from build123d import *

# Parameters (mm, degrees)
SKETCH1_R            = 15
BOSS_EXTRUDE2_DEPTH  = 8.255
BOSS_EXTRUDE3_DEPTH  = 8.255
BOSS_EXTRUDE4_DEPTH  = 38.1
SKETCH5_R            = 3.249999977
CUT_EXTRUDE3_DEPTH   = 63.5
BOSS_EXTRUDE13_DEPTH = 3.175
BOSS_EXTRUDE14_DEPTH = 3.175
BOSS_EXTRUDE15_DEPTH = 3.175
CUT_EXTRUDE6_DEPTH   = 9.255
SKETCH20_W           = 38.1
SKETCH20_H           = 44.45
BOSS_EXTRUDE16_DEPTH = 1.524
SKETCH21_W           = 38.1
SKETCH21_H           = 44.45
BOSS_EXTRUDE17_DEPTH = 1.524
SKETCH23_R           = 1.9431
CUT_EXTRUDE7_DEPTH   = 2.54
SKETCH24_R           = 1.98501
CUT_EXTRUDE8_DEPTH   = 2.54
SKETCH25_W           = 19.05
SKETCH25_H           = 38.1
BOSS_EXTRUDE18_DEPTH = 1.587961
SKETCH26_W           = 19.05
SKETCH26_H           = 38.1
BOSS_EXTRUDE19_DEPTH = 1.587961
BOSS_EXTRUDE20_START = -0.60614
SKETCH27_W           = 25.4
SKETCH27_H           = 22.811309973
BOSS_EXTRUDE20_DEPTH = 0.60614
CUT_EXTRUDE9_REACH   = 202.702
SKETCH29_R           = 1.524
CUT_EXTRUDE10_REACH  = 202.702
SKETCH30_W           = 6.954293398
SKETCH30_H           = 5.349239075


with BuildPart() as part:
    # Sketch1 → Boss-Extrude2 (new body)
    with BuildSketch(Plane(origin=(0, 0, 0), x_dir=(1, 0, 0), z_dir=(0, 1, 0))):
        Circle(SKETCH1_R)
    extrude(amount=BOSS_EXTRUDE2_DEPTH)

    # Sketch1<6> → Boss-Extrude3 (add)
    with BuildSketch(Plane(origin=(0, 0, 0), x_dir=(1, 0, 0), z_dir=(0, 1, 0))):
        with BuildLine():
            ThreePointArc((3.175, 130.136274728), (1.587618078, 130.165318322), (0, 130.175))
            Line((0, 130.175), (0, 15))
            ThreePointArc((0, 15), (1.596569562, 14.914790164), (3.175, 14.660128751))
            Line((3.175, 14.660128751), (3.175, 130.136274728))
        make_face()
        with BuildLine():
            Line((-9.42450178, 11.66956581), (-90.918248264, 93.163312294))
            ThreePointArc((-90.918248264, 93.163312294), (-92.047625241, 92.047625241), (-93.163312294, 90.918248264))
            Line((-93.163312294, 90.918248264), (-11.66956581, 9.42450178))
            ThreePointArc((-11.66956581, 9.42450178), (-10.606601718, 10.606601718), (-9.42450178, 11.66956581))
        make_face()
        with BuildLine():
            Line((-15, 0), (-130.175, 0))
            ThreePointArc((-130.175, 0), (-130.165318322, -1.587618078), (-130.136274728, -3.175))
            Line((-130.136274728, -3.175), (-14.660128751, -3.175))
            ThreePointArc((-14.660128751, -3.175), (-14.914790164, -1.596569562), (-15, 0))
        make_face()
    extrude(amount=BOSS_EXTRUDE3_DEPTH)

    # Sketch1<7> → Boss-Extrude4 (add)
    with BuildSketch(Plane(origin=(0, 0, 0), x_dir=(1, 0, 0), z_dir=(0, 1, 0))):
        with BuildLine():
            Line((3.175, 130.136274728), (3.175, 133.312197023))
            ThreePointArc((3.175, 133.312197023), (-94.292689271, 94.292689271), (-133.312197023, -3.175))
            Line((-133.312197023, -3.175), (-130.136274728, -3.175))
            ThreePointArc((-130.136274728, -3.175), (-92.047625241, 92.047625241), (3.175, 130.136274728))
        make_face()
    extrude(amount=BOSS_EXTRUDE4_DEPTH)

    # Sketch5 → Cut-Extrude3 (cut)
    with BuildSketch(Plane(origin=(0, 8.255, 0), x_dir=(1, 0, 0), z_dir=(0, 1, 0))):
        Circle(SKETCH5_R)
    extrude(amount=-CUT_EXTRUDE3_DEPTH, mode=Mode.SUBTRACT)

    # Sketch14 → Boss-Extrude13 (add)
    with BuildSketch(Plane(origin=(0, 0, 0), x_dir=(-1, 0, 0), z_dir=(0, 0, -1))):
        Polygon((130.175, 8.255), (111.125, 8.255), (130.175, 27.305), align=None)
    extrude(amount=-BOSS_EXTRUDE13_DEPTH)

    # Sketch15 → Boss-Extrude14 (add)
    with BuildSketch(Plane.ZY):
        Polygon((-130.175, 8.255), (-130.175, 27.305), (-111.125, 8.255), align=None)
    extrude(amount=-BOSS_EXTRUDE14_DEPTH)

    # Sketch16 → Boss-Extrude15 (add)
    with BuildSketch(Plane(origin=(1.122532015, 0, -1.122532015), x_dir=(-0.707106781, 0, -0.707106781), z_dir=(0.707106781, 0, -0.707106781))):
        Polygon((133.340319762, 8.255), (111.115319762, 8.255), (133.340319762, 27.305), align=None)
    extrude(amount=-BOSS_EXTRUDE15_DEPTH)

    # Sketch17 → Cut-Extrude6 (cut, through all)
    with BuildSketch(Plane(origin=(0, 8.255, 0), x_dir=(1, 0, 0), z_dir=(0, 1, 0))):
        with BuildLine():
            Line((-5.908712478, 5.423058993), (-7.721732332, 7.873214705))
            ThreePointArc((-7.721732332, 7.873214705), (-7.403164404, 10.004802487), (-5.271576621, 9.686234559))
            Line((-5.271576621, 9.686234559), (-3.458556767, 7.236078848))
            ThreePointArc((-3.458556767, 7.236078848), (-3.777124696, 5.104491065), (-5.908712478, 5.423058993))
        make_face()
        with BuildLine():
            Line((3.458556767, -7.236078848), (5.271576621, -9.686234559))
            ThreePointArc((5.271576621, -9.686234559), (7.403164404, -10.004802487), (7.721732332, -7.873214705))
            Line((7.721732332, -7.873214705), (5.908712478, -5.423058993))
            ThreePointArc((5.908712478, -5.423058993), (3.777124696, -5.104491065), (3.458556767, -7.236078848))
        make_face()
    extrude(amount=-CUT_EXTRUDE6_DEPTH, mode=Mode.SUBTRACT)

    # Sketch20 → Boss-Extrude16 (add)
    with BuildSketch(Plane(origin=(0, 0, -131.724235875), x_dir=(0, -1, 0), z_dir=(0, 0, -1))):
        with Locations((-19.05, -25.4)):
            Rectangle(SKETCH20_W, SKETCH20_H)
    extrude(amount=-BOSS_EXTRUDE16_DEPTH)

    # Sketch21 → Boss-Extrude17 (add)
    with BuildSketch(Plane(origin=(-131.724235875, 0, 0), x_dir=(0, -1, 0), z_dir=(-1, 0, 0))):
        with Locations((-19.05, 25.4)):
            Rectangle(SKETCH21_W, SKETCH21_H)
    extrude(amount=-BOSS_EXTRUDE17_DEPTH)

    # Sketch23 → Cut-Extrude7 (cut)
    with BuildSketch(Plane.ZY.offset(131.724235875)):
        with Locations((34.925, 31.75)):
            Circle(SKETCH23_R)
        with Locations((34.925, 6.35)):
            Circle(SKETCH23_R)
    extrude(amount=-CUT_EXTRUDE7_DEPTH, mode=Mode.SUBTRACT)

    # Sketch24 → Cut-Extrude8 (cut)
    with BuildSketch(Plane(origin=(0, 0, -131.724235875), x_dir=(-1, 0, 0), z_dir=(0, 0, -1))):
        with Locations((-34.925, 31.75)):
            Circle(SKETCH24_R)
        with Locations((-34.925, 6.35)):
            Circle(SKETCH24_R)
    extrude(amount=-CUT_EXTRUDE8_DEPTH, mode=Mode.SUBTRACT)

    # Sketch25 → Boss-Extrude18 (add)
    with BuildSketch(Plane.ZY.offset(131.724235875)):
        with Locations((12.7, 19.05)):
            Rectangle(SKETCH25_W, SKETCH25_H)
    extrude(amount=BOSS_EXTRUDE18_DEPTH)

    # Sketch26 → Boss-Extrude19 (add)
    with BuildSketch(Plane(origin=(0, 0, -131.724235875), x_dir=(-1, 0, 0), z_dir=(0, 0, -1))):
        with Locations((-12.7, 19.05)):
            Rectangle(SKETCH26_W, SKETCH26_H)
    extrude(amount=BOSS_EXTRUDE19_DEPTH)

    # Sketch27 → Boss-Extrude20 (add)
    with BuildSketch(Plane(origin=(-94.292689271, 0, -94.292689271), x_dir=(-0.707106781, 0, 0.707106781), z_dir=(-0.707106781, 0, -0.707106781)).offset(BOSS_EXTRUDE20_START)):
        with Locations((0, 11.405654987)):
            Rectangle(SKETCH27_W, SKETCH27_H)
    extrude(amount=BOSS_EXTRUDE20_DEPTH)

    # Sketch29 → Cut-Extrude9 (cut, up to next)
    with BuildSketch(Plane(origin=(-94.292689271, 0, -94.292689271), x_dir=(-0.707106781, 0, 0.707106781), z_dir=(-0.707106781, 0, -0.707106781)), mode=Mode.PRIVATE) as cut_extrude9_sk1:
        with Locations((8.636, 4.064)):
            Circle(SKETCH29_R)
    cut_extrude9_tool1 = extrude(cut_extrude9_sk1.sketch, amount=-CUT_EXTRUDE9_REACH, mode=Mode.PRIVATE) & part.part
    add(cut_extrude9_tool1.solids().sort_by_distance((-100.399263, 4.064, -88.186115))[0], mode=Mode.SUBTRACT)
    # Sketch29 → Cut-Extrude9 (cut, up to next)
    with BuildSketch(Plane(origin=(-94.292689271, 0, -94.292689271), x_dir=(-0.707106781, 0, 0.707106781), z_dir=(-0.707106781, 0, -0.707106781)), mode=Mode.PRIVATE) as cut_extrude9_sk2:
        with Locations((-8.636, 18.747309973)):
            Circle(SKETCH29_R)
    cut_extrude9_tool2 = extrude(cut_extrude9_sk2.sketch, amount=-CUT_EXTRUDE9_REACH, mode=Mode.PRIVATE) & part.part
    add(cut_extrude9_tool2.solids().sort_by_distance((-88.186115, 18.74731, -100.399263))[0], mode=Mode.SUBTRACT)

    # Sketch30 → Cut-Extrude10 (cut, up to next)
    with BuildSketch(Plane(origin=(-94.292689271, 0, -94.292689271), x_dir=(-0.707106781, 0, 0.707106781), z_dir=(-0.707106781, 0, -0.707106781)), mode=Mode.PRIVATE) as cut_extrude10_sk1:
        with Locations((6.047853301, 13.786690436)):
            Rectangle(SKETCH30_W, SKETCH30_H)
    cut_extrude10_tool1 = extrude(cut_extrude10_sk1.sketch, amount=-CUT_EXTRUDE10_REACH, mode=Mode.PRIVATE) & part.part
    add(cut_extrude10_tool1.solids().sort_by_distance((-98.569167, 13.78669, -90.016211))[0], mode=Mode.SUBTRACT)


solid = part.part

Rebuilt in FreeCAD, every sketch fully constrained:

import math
import FreeCAD as App
import Part
import Sketcher
Q = App.Units.Quantity

doc = App.newDocument("Part")
params = doc.addObject("Spreadsheet::Sheet", "Params")
for row, (alias, value) in enumerate([
    ("pad1_length", "0.325 in"),
    ("sketch2_radius", "5.125 in"),
    ("sketch2_radius2", "5.1249999 in"),
    ("pad2_length", "0.325 in"),
    ("sketch3_radius", "5.25 in"),
    ("sketch3_radius2", "5.125 in"),
    ("pad3_length", "1.5 in"),
    ("pocket1_length", "2.5 in"),
    ("sketch5_width", "0.75 in"),
    ("pad4_length", "0.125 in"),
    ("sketch6_width", "0.75 in"),
    ("pad5_length", "0.125 in"),
    ("sketch7_height", "0.75 in"),
    ("sketch7_width", "0.875 in"),
    ("pad6_length", "0.125 in"),
    ("sketch8_radius", "0.06 in"),
    ("sketch8_length", "0.12 in"),
    ("sketch9_height", "1.5 in"),
    ("sketch9_width", "1.75 in"),
    ("pad7_length", "0.06 in"),
    ("sketch10_width", "1.5 in"),
    ("sketch10_height", "1.75 in"),
    ("pad8_length", "0.06 in"),
    ("sketch11_diameter", "0.153 in"),
    ("pocket3_length", "0.1 in"),
    ("pocket4_length", "0.1 in"),
    ("sketch13_width", "1.5 in"),
    ("sketch13_height", "0.75 in"),
    ("pad9_length", "1.587961 mm"),
    ("sketch14_height", "1.5 in"),
    ("sketch14_width", "0.75 in"),
    ("pad10_length", "1.587961 mm"),
    ("sketch15_width", "1 in"),
    ("pad11_length", "0.60614 mm"),
    ("sketch16_diameter", "0.12 in"),
    ("sketch17_diameter", "0.12 in"),
], start=1):
    params.set(f"A{row}", alias)
    params.set(f"B{row}", "=" + value)
    params.setAlias(f"B{row}", alias)

body = doc.addObject("PartDesign::Body", "Body")

# Sketch on XZ plane
sketch1 = body.newObject("Sketcher::SketchObject", "Sketch")
sketch1.AttachmentSupport = (doc.getObject("XZ_Plane"), [""])
sketch1.MapMode = "FlatFace"
sketch1.addGeometry(Part.Circle(App.Vector(0, 0, 0), App.Vector(0, 0, 1), 15), False)
sketch1.addConstraint(Sketcher.Constraint("Coincident", 0, 3, -1, 1))
sketch1.addConstraint(Sketcher.Constraint("Diameter", 0, 30.0))
pad1 = body.newObject("PartDesign::Pad", "Pad")
pad1.Profile = sketch1
pad1.setExpression("Length", "Params.pad1_length")
pad1.Reversed = True

# Sketch on XZ plane
sketch2 = body.newObject("Sketcher::SketchObject", "Sketch001")
sketch2.AttachmentSupport = (doc.getObject("XZ_Plane"), [""])
sketch2.MapMode = "FlatFace"
sketch2.addGeometry(Part.ArcOfCircle(Part.Circle(App.Vector(0, 0.000001, 0), App.Vector(0, 0, 1), 130.175001), math.radians(-90), math.radians(-88.602403)), False)
sketch2.addGeometry(Part.LineSegment(App.Vector(0, -130.175, 0), App.Vector(0, -15, 0)), False)
sketch2.addGeometry(Part.ArcOfCircle(Part.Circle(App.Vector(0, 0, 0), App.Vector(0, 0, 1), 15), math.radians(-90), math.radians(-77.779959)), False)
sketch2.addGeometry(Part.LineSegment(App.Vector(3.175, -14.660129, 0), App.Vector(3.175, -130.136275, 0)), False)
sketch2.addGeometry(Part.LineSegment(App.Vector(-9.424502, -11.669566, 0), App.Vector(-90.918248, -93.163312, 0)), False)
sketch2.addGeometry(Part.ArcOfCircle(Part.Circle(App.Vector(-0.000001, -0.000001, 0), App.Vector(0, 0, 1), 130.174998), math.radians(-135.698746), math.radians(-134.301254)), False)
sketch2.addGeometry(Part.LineSegment(App.Vector(-93.163312, -90.918248, 0), App.Vector(-11.669566, -9.424502, 0)), False)
sketch2.addGeometry(Part.ArcOfCircle(Part.Circle(App.Vector(0, 0, 0), App.Vector(0, 0, 1), 15), math.radians(-141.075181), math.radians(-128.924819)), False)
sketch2.addGeometry(Part.LineSegment(App.Vector(-15, 0, 0), App.Vector(-130.175, 0, 0)), False)
sketch2.addGeometry(Part.ArcOfCircle(Part.Circle(App.Vector(0.000001, 0, 0), App.Vector(0, 0, 1), 130.175001), math.radians(178.602403), math.radians(180)), False)
sketch2.addGeometry(Part.LineSegment(App.Vector(-130.136275, 3.175, 0), App.Vector(-14.660129, 3.175, 0)), False)
sketch2.addGeometry(Part.ArcOfCircle(Part.Circle(App.Vector(0, 0, 0), App.Vector(0, 0, 1), 15), math.radians(167.779959), math.radians(180)), False)
sketch2.addConstraint(Sketcher.Constraint("Coincident", 0, 1, 1, 1))
sketch2.addConstraint(Sketcher.Constraint("Coincident", 1, 2, 2, 1))
sketch2.addConstraint(Sketcher.Constraint("Coincident", 2, 2, 3, 1))
sketch2.addConstraint(Sketcher.Constraint("Coincident", 3, 2, 0, 2))
sketch2.addConstraint(Sketcher.Constraint("Coincident", 4, 2, 5, 2))
sketch2.addConstraint(Sketcher.Constraint("Coincident", 5, 1, 6, 1))
sketch2.addConstraint(Sketcher.Constraint("Coincident", 6, 2, 7, 1))
sketch2.addConstraint(Sketcher.Constraint("Coincident", 7, 2, 4, 1))
sketch2.addConstraint(Sketcher.Constraint("Coincident", 8, 2, 9, 2))
sketch2.addConstraint(Sketcher.Constraint("Coincident", 9, 1, 10, 1))
sketch2.addConstraint(Sketcher.Constraint("Coincident", 10, 2, 11, 1))
sketch2.addConstraint(Sketcher.Constraint("Coincident", 11, 2, 8, 1))
sketch2.addConstraint(Sketcher.Constraint("Vertical", 1))
sketch2.addConstraint(Sketcher.Constraint("Vertical", 3))
sketch2.addConstraint(Sketcher.Constraint("Horizontal", 8))
sketch2.addConstraint(Sketcher.Constraint("Horizontal", 10))
sketch2.addConstraint(Sketcher.Constraint("Coincident", 0, 3, -1, 1))
sketch2.addConstraint(Sketcher.Constraint("Coincident", 2, 3, -1, 1))
sketch2.addConstraint(Sketcher.Constraint("Coincident", 5, 3, -1, 1))
sketch2.addConstraint(Sketcher.Constraint("Coincident", 7, 3, -1, 1))
sketch2.addConstraint(Sketcher.Constraint("Coincident", 9, 3, -1, 1))
sketch2.addConstraint(Sketcher.Constraint("Coincident", 11, 3, -1, 1))
sketch2.addConstraint(Sketcher.Constraint("Equal", 2, 7))
sketch2.addConstraint(Sketcher.Constraint("Equal", 0, 9))
sketch2.addConstraint(Sketcher.Constraint("Equal", 7, 11))
sketch2.addConstraint(Sketcher.Constraint("PointOnObject", 0, 1, -2))
sketch2.addConstraint(Sketcher.Constraint("PointOnObject", 8, 2, -1))
sketch2.addConstraint(Sketcher.Constraint("Parallel", 4, 6))
sketch2.addConstraint(Sketcher.Constraint("Equal", 10, 3))
sketch2.addConstraint(Sketcher.Constraint("Equal", 4, 6))
sketch2.addConstraint(Sketcher.Constraint("Angle", 4, Q("-135 deg")))
sketch2.addConstraint(Sketcher.Constraint("Radius", 0, Q("5.125 in")))
sketch2.addConstraint(Sketcher.Constraint("Radius", 5, Q("5.1249999 in")))
sketch2.addConstraint(Sketcher.Constraint("Radius", 2, 15.0))
sketch2.addConstraint(Sketcher.Constraint("DistanceX", -1, 1, 2, 2, Q("0.125 in")))
sketch2.addConstraint(Sketcher.Constraint("DistanceY", 6, 2, -1, 1, 9.424502))
sketch2.setExpression("Constraints[31]", "Params.sketch2_radius")
sketch2.setExpression("Constraints[32]", "Params.sketch2_radius2")
pad2 = body.newObject("PartDesign::Pad", "Pad001")
pad2.Profile = sketch2
pad2.setExpression("Length", "Params.pad2_length")
pad2.Reversed = True

# Sketch on XZ plane
sketch3 = body.newObject("Sketcher::SketchObject", "Sketch002")
sketch3.AttachmentSupport = (doc.getObject("XZ_Plane"), [""])
sketch3.MapMode = "FlatFace"
sketch3.addGeometry(Part.LineSegment(App.Vector(3.175, -130.136275, 0), App.Vector(3.175, -133.312197, 0)), False)
sketch3.addGeometry(Part.ArcOfCircle(Part.Circle(App.Vector(0, 0, 0), App.Vector(0, 0, 1), 133.35), math.radians(178.635686), math.radians(271.364314)), False)
sketch3.addGeometry(Part.LineSegment(App.Vector(-133.312197, 3.175, 0), App.Vector(-130.136275, 3.175, 0)), False)
sketch3.addGeometry(Part.ArcOfCircle(Part.Circle(App.Vector(0, 0, 0), App.Vector(0, 0, 1), 130.175), math.radians(178.602403), math.radians(271.397597)), False)
sketch3.addConstraint(Sketcher.Constraint("Coincident", 0, 2, 1, 2))
sketch3.addConstraint(Sketcher.Constraint("Coincident", 1, 1, 2, 1))
sketch3.addConstraint(Sketcher.Constraint("Coincident", 2, 2, 3, 1))
sketch3.addConstraint(Sketcher.Constraint("Coincident", 3, 2, 0, 1))
sketch3.addConstraint(Sketcher.Constraint("Vertical", 0))
sketch3.addConstraint(Sketcher.Constraint("Horizontal", 2))
sketch3.addConstraint(Sketcher.Constraint("Coincident", 1, 3, -1, 1))
sketch3.addConstraint(Sketcher.Constraint("Coincident", 3, 3, -1, 1))
sketch3.addConstraint(Sketcher.Constraint("Radius", 1, Q("5.25 in")))
sketch3.addConstraint(Sketcher.Constraint("Radius", 3, Q("5.125 in")))
sketch3.addConstraint(Sketcher.Constraint("DistanceX", -1, 1, 0, 2, Q("0.125 in")))
sketch3.addConstraint(Sketcher.Constraint("DistanceY", -1, 1, 1, 1, Q("0.125 in")))
sketch3.setExpression("Constraints[8]", "Params.sketch3_radius")
sketch3.setExpression("Constraints[9]", "Params.sketch3_radius2")
pad3 = body.newObject("PartDesign::Pad", "Pad002")
pad3.Profile = sketch3
pad3.setExpression("Length", "Params.pad3_length")
pad3.Reversed = True

# Sketch on XZ plane
sketch4 = body.newObject("Sketcher::SketchObject", "Sketch003")
sketch4.AttachmentSupport = (doc.getObject("XZ_Plane"), [""])
sketch4.MapMode = "FlatFace"
sketch4.AttachmentOffset = App.Placement(App.Vector(0, 0, -0.325 * 25.4), App.Rotation())
sketch4.addGeometry(Part.Circle(App.Vector(0, 0, 0), App.Vector(0, 0, 1), 3.25), False)
sketch4.addConstraint(Sketcher.Constraint("Coincident", 0, 3, -1, 1))
sketch4.addConstraint(Sketcher.Constraint("Diameter", 0, 6.5))
pocket1 = body.newObject("PartDesign::Pocket", "Pocket")
pocket1.Profile = sketch4
pocket1.setExpression("Length", "Params.pocket1_length")
pocket1.Reversed = True

# Sketch on XY plane
sketch5 = body.newObject("Sketcher::SketchObject", "Sketch004")
sketch5.AttachmentSupport = (doc.getObject("XY_Plane"), [""])
sketch5.MapMode = "FlatFace"
sketch5.addGeometry(Part.LineSegment(App.Vector(-111.125, 8.255, 0), App.Vector(-130.175, 8.255, 0)), False)
sketch5.addGeometry(Part.LineSegment(App.Vector(-130.175, 8.255, 0), App.Vector(-130.175, 27.305, 0)), False)
sketch5.addGeometry(Part.LineSegment(App.Vector(-130.175, 27.305, 0), App.Vector(-111.125, 8.255, 0)), False)
sketch5.addConstraint(Sketcher.Constraint("Coincident", 0, 2, 1, 1))
sketch5.addConstraint(Sketcher.Constraint("Coincident", 1, 2, 2, 1))
sketch5.addConstraint(Sketcher.Constraint("Coincident", 2, 2, 0, 1))
sketch5.addConstraint(Sketcher.Constraint("Horizontal", 0))
sketch5.addConstraint(Sketcher.Constraint("Vertical", 1))
sketch5.addConstraint(Sketcher.Constraint("Equal", 0, 1))
sketch5.addConstraint(Sketcher.Constraint("DistanceX", 0, 2, 0, 1, Q("0.75 in")))
sketch5.addConstraint(Sketcher.Constraint("DistanceX", 0, 2, -1, 1, Q("5.125 in")))
sketch5.addConstraint(Sketcher.Constraint("DistanceY", -1, 1, 0, 2, Q("0.325 in")))
sketch5.setExpression("Constraints[6]", "Params.sketch5_width")
pad4 = body.newObject("PartDesign::Pad", "Pad003")
pad4.Profile = sketch5
pad4.setExpression("Length", "Params.pad4_length")

# Sketch on YZ plane
sketch6 = body.newObject("Sketcher::SketchObject", "Sketch005")
sketch6.AttachmentSupport = (doc.getObject("YZ_Plane"), [""])
sketch6.MapMode = "FlatFace"
sketch6.addGeometry(Part.LineSegment(App.Vector(27.305, -130.175, 0), App.Vector(8.255, -130.175, 0)), False)
sketch6.addGeometry(Part.LineSegment(App.Vector(8.255, -130.175, 0), App.Vector(8.255, -111.125, 0)), False)
sketch6.addGeometry(Part.LineSegment(App.Vector(8.255, -111.125, 0), App.Vector(27.305, -130.175, 0)), False)
sketch6.addConstraint(Sketcher.Constraint("Coincident", 0, 2, 1, 1))
sketch6.addConstraint(Sketcher.Constraint("Coincident", 1, 2, 2, 1))
sketch6.addConstraint(Sketcher.Constraint("Coincident", 2, 2, 0, 1))
sketch6.addConstraint(Sketcher.Constraint("Horizontal", 0))
sketch6.addConstraint(Sketcher.Constraint("Vertical", 1))
sketch6.addConstraint(Sketcher.Constraint("Equal", 0, 1))
sketch6.addConstraint(Sketcher.Constraint("DistanceX", 0, 2, 0, 1, Q("0.75 in")))
sketch6.addConstraint(Sketcher.Constraint("DistanceX", -1, 1, 0, 2, Q("0.325 in")))
sketch6.addConstraint(Sketcher.Constraint("DistanceY", 0, 2, -1, 1, Q("5.125 in")))
sketch6.setExpression("Constraints[6]", "Params.sketch6_width")
pad5 = body.newObject("PartDesign::Pad", "Pad004")
pad5.Profile = sketch6
pad5.setExpression("Length", "Params.pad5_length")

# Sketch on an angled plane
sketch7 = body.newObject("Sketcher::SketchObject", "Sketch006")
sketch7.Placement = App.Placement(App.Vector(1.122532, 0, -1.122532), App.Rotation(App.Vector(-0.707106781, 0, -0.707106781), App.Vector(0, 0.999999999, 0), App.Vector(0.707106781, 0, -0.707106781), "ZXY"))
sketch7.addGeometry(Part.LineSegment(App.Vector(111.11532, 8.255, 0), App.Vector(133.34032, 8.255, 0)), False)
sketch7.addGeometry(Part.LineSegment(App.Vector(133.34032, 8.255, 0), App.Vector(133.34032, 27.305, 0)), False)
sketch7.addGeometry(Part.LineSegment(App.Vector(133.34032, 27.305, 0), App.Vector(111.11532, 8.255, 0)), False)
sketch7.addConstraint(Sketcher.Constraint("Coincident", 0, 2, 1, 1))
sketch7.addConstraint(Sketcher.Constraint("Coincident", 1, 2, 2, 1))
sketch7.addConstraint(Sketcher.Constraint("Coincident", 2, 2, 0, 1))
sketch7.addConstraint(Sketcher.Constraint("Horizontal", 0))
sketch7.addConstraint(Sketcher.Constraint("Vertical", 1))
sketch7.addConstraint(Sketcher.Constraint("DistanceY", 1, 1, 1, 2, Q("0.75 in")))
sketch7.addConstraint(Sketcher.Constraint("DistanceX", 0, 1, 0, 2, Q("0.875 in")))
sketch7.addConstraint(Sketcher.Constraint("DistanceY", -1, 1, 0, 2, Q("0.325 in")))
sketch7.addConstraint(Sketcher.Constraint("DistanceX", -1, 1, 0, 2, 133.34032))
sketch7.setExpression("Constraints[5]", "Params.sketch7_height")
sketch7.setExpression("Constraints[6]", "Params.sketch7_width")
pad6 = body.newObject("PartDesign::Pad", "Pad005")
pad6.Profile = sketch7
pad6.setExpression("Length", "Params.pad6_length")
pad6.Reversed = True

# Sketch on XZ plane
sketch8 = body.newObject("Sketcher::SketchObject", "Sketch007")
sketch8.AttachmentSupport = (doc.getObject("XZ_Plane"), [""])
sketch8.MapMode = "FlatFace"
sketch8.AttachmentOffset = App.Placement(App.Vector(0, 0, -0.325 * 25.4), App.Rotation())
sketch8.addGeometry(Part.LineSegment(App.Vector(-7.721732, -7.873215, 0), App.Vector(-5.908712, -5.423059, 0)), False)
sketch8.addGeometry(Part.ArcOfCircle(Part.Circle(App.Vector(-4.683635, -6.329569, 0), App.Vector(0, 0, 1), 1.524), math.radians(-36.5), math.radians(143.5)), False)
sketch8.addGeometry(Part.LineSegment(App.Vector(-3.458557, -7.236079, 0), App.Vector(-5.271577, -9.686235, 0)), False)
sketch8.addGeometry(Part.ArcOfCircle(Part.Circle(App.Vector(-6.496654, -8.779725, 0), App.Vector(0, 0, 1), 1.524), math.radians(143.5), math.radians(323.5)), False)
sketch8.addGeometry(Part.LineSegment(App.Vector(3.458557, 7.236079, 0), App.Vector(5.271577, 9.686235, 0)), False)
sketch8.addGeometry(Part.ArcOfCircle(Part.Circle(App.Vector(6.496654, 8.779725, 0), App.Vector(0, 0, 1), 1.524), math.radians(-36.5), math.radians(143.5)), False)
sketch8.addGeometry(Part.LineSegment(App.Vector(7.721732, 7.873215, 0), App.Vector(5.908712, 5.423059, 0)), False)
sketch8.addGeometry(Part.ArcOfCircle(Part.Circle(App.Vector(4.683635, 6.329569, 0), App.Vector(0, 0, 1), 1.524), math.radians(143.5), math.radians(323.5)), False)
sketch8.addConstraint(Sketcher.Constraint("Tangent", 0, 2, 1, 2))
sketch8.addConstraint(Sketcher.Constraint("Tangent", 1, 1, 2, 1))
sketch8.addConstraint(Sketcher.Constraint("Tangent", 2, 2, 3, 2))
sketch8.addConstraint(Sketcher.Constraint("Tangent", 3, 1, 0, 1))
sketch8.addConstraint(Sketcher.Constraint("Tangent", 4, 2, 5, 2))
sketch8.addConstraint(Sketcher.Constraint("Tangent", 5, 1, 6, 1))
sketch8.addConstraint(Sketcher.Constraint("Tangent", 6, 2, 7, 2))
sketch8.addConstraint(Sketcher.Constraint("Tangent", 7, 1, 4, 1))
sketch8.addConstraint(Sketcher.Constraint("Equal", 1, 3))
sketch8.addConstraint(Sketcher.Constraint("Equal", 3, 5))
sketch8.addConstraint(Sketcher.Constraint("Equal", 5, 7))
sketch8.addConstraint(Sketcher.Constraint("Symmetric", 3, 3, 5, 3, -1, 1))
sketch8.addConstraint(Sketcher.Constraint("Symmetric", 1, 3, 7, 3, -1, 1))
sketch8.addConstraint(Sketcher.Constraint("Radius", 1, Q("0.06 in")))
sketch8.addConstraint(Sketcher.Constraint("Angle", 0, Q("53.5 deg")))
sketch8.addConstraint(Sketcher.Constraint("Distance", 0, Q("0.12 in")))
sketch8.addConstraint(Sketcher.Constraint("DistanceY", 1, 3, -1, 1, 6.329569))
sketch8.addConstraint(Sketcher.Constraint("DistanceX", 1, 3, 5, 3, 11.180289))
sketch8.setExpression("Constraints[13]", "Params.sketch8_radius")
sketch8.setExpression("Constraints[15]", "Params.sketch8_length")
pocket2 = body.newObject("PartDesign::Pocket", "Pocket001")
pocket2.Profile = sketch8
pocket2.Type = "ThroughAll"
pocket2.Reversed = True

# Sketch on XY plane
sketch9 = body.newObject("Sketcher::SketchObject", "Sketch008")
sketch9.AttachmentSupport = (doc.getObject("XY_Plane"), [""])
sketch9.MapMode = "FlatFace"
sketch9.AttachmentOffset = App.Placement(App.Vector(0, 0, -131.724236), App.Rotation())
sketch9.addGeometry(Part.LineSegment(App.Vector(3.175, 38.1, 0), App.Vector(47.625, 38.1, 0)), False)
sketch9.addGeometry(Part.LineSegment(App.Vector(47.625, 38.1, 0), App.Vector(47.625, 0, 0)), False)
sketch9.addGeometry(Part.LineSegment(App.Vector(47.625, 0, 0), App.Vector(3.175, 0, 0)), False)
sketch9.addGeometry(Part.LineSegment(App.Vector(3.175, 0, 0), App.Vector(3.175, 38.1, 0)), False)
sketch9.addConstraint(Sketcher.Constraint("Coincident", 0, 2, 1, 1))
sketch9.addConstraint(Sketcher.Constraint("Coincident", 1, 2, 2, 1))
sketch9.addConstraint(Sketcher.Constraint("Coincident", 2, 2, 3, 1))
sketch9.addConstraint(Sketcher.Constraint("Coincident", 3, 2, 0, 1))
sketch9.addConstraint(Sketcher.Constraint("Horizontal", 0))
sketch9.addConstraint(Sketcher.Constraint("Vertical", 1))
sketch9.addConstraint(Sketcher.Constraint("Horizontal", 2))
sketch9.addConstraint(Sketcher.Constraint("Vertical", 3))
sketch9.addConstraint(Sketcher.Constraint("PointOnObject", 1, 2, -1))
sketch9.addConstraint(Sketcher.Constraint("DistanceY", 1, 2, 1, 1, Q("1.5 in")))
sketch9.addConstraint(Sketcher.Constraint("DistanceX", 0, 1, 0, 2, Q("1.75 in")))
sketch9.addConstraint(Sketcher.Constraint("DistanceX", -1, 1, 0, 2, Q("1.875 in")))
sketch9.setExpression("Constraints[9]", "Params.sketch9_height")
sketch9.setExpression("Constraints[10]", "Params.sketch9_width")
pad7 = body.newObject("PartDesign::Pad", "Pad006")
pad7.Profile = sketch9
pad7.setExpression("Length", "Params.pad7_length")

# Sketch on YZ plane
sketch10 = body.newObject("Sketcher::SketchObject", "Sketch009")
sketch10.AttachmentSupport = (doc.getObject("YZ_Plane"), [""])
sketch10.MapMode = "FlatFace"
sketch10.AttachmentOffset = App.Placement(App.Vector(0, 0, -131.724236), App.Rotation())
sketch10.addGeometry(Part.LineSegment(App.Vector(38.1, 47.625, 0), App.Vector(38.1, 3.175, 0)), False)
sketch10.addGeometry(Part.LineSegment(App.Vector(38.1, 3.175, 0), App.Vector(0, 3.175, 0)), False)
sketch10.addGeometry(Part.LineSegment(App.Vector(0, 3.175, 0), App.Vector(0, 47.625, 0)), False)
sketch10.addGeometry(Part.LineSegment(App.Vector(0, 47.625, 0), App.Vector(38.1, 47.625, 0)), False)
sketch10.addConstraint(Sketcher.Constraint("Coincident", 0, 2, 1, 1))
sketch10.addConstraint(Sketcher.Constraint("Coincident", 1, 2, 2, 1))
sketch10.addConstraint(Sketcher.Constraint("Coincident", 2, 2, 3, 1))
sketch10.addConstraint(Sketcher.Constraint("Coincident", 3, 2, 0, 1))
sketch10.addConstraint(Sketcher.Constraint("Vertical", 0))
sketch10.addConstraint(Sketcher.Constraint("Horizontal", 1))
sketch10.addConstraint(Sketcher.Constraint("Vertical", 2))
sketch10.addConstraint(Sketcher.Constraint("Horizontal", 3))
sketch10.addConstraint(Sketcher.Constraint("PointOnObject", 1, 2, -2))
sketch10.addConstraint(Sketcher.Constraint("DistanceX", 1, 2, 1, 1, Q("1.5 in")))
sketch10.addConstraint(Sketcher.Constraint("DistanceY", 0, 2, 0, 1, Q("1.75 in")))
sketch10.addConstraint(Sketcher.Constraint("DistanceY", -1, 1, 0, 2, Q("0.125 in")))
sketch10.setExpression("Constraints[9]", "Params.sketch10_width")
sketch10.setExpression("Constraints[10]", "Params.sketch10_height")
pad8 = body.newObject("PartDesign::Pad", "Pad007")
pad8.Profile = sketch10
pad8.setExpression("Length", "Params.pad8_length")

# Sketch on YZ plane
sketch11 = body.newObject("Sketcher::SketchObject", "Sketch010")
sketch11.AttachmentSupport = (doc.getObject("YZ_Plane"), [""])
sketch11.MapMode = "FlatFace"
sketch11.AttachmentOffset = App.Placement(App.Vector(0, 0, -131.724236), App.Rotation())
sketch11.addGeometry(Part.Circle(App.Vector(31.75, 34.925, 0), App.Vector(0, 0, 1), 1.9431), False)
sketch11.addGeometry(Part.Circle(App.Vector(6.35, 34.925, 0), App.Vector(0, 0, 1), 1.9431), False)
sketch11.addConstraint(Sketcher.Constraint("Equal", 0, 1))
sketch11.addConstraint(Sketcher.Constraint("Horizontal", 0, 3, 1, 3))
sketch11.addConstraint(Sketcher.Constraint("Diameter", 0, Q("0.153 in")))
sketch11.addConstraint(Sketcher.Constraint("DistanceX", 1, 3, 0, 3, Q("1 in")))
sketch11.addConstraint(Sketcher.Constraint("DistanceX", -1, 1, 0, 3, Q("1.25 in")))
sketch11.addConstraint(Sketcher.Constraint("DistanceY", -1, 1, 0, 3, Q("1.375 in")))
sketch11.setExpression("Constraints[2]", "Params.sketch11_diameter")
pocket3 = body.newObject("PartDesign::Pocket", "Pocket002")
pocket3.Profile = sketch11
pocket3.setExpression("Length", "Params.pocket3_length")
pocket3.Reversed = True

# Sketch on XY plane
sketch12 = body.newObject("Sketcher::SketchObject", "Sketch011")
sketch12.AttachmentSupport = (doc.getObject("XY_Plane"), [""])
sketch12.MapMode = "FlatFace"
sketch12.AttachmentOffset = App.Placement(App.Vector(0, 0, -131.724236), App.Rotation())
sketch12.addGeometry(Part.Circle(App.Vector(34.925, 31.75, 0), App.Vector(0, 0, 1), 1.98501), False)
sketch12.addGeometry(Part.Circle(App.Vector(34.925, 6.35, 0), App.Vector(0, 0, 1), 1.98501), False)
sketch12.addConstraint(Sketcher.Constraint("Equal", 0, 1))
sketch12.addConstraint(Sketcher.Constraint("Vertical", 0, 3, 1, 3))
sketch12.addConstraint(Sketcher.Constraint("DistanceY", 1, 3, 0, 3, Q("1 in")))
sketch12.addConstraint(Sketcher.Constraint("Diameter", 0, Q("0.1563 in")))
sketch12.addConstraint(Sketcher.Constraint("DistanceY", -1, 1, 0, 3, Q("1.25 in")))
sketch12.addConstraint(Sketcher.Constraint("DistanceX", -1, 1, 0, 3, Q("1.375 in")))
pocket4 = body.newObject("PartDesign::Pocket", "Pocket003")
pocket4.Profile = sketch12
pocket4.setExpression("Length", "Params.pocket4_length")
pocket4.Reversed = True

# Sketch on YZ plane
sketch13 = body.newObject("Sketcher::SketchObject", "Sketch012")
sketch13.AttachmentSupport = (doc.getObject("YZ_Plane"), [""])
sketch13.MapMode = "FlatFace"
sketch13.AttachmentOffset = App.Placement(App.Vector(0, 0, -131.724236), App.Rotation())
sketch13.addGeometry(Part.LineSegment(App.Vector(38.1, 3.175, 0), App.Vector(0, 3.175, 0)), False)
sketch13.addGeometry(Part.LineSegment(App.Vector(0, 3.175, 0), App.Vector(0, 22.225, 0)), False)
sketch13.addGeometry(Part.LineSegment(App.Vector(0, 22.225, 0), App.Vector(38.1, 22.225, 0)), False)
sketch13.addGeometry(Part.LineSegment(App.Vector(38.1, 22.225, 0), App.Vector(38.1, 3.175, 0)), False)
sketch13.addConstraint(Sketcher.Constraint("Coincident", 0, 2, 1, 1))
sketch13.addConstraint(Sketcher.Constraint("Coincident", 1, 2, 2, 1))
sketch13.addConstraint(Sketcher.Constraint("Coincident", 2, 2, 3, 1))
sketch13.addConstraint(Sketcher.Constraint("Coincident", 3, 2, 0, 1))
sketch13.addConstraint(Sketcher.Constraint("Horizontal", 0))
sketch13.addConstraint(Sketcher.Constraint("Vertical", 1))
sketch13.addConstraint(Sketcher.Constraint("Horizontal", 2))
sketch13.addConstraint(Sketcher.Constraint("Vertical", 3))
sketch13.addConstraint(Sketcher.Constraint("PointOnObject", 0, 2, -2))
sketch13.addConstraint(Sketcher.Constraint("DistanceX", 0, 2, 0, 1, Q("1.5 in")))
sketch13.addConstraint(Sketcher.Constraint("DistanceY", 1, 1, 1, 2, Q("0.75 in")))
sketch13.addConstraint(Sketcher.Constraint("DistanceY", -1, 1, 0, 2, Q("0.125 in")))
sketch13.setExpression("Constraints[9]", "Params.sketch13_width")
sketch13.setExpression("Constraints[10]", "Params.sketch13_height")
pad9 = body.newObject("PartDesign::Pad", "Pad008")
pad9.Profile = sketch13
pad9.setExpression("Length", "Params.pad9_length")
pad9.Reversed = True

# Sketch on XY plane
sketch14 = body.newObject("Sketcher::SketchObject", "Sketch013")
sketch14.AttachmentSupport = (doc.getObject("XY_Plane"), [""])
sketch14.MapMode = "FlatFace"
sketch14.AttachmentOffset = App.Placement(App.Vector(0, 0, -131.724236), App.Rotation())
sketch14.addGeometry(Part.LineSegment(App.Vector(22.225, 38.1, 0), App.Vector(22.225, 0, 0)), False)
sketch14.addGeometry(Part.LineSegment(App.Vector(22.225, 0, 0), App.Vector(3.175, 0, 0)), False)
sketch14.addGeometry(Part.LineSegment(App.Vector(3.175, 0, 0), App.Vector(3.175, 38.1, 0)), False)
sketch14.addGeometry(Part.LineSegment(App.Vector(3.175, 38.1, 0), App.Vector(22.225, 38.1, 0)), False)
sketch14.addConstraint(Sketcher.Constraint("Coincident", 0, 2, 1, 1))
sketch14.addConstraint(Sketcher.Constraint("Coincident", 1, 2, 2, 1))
sketch14.addConstraint(Sketcher.Constraint("Coincident", 2, 2, 3, 1))
sketch14.addConstraint(Sketcher.Constraint("Coincident", 3, 2, 0, 1))
sketch14.addConstraint(Sketcher.Constraint("Vertical", 0))
sketch14.addConstraint(Sketcher.Constraint("Horizontal", 1))
sketch14.addConstraint(Sketcher.Constraint("Vertical", 2))
sketch14.addConstraint(Sketcher.Constraint("Horizontal", 3))
sketch14.addConstraint(Sketcher.Constraint("PointOnObject", 0, 2, -1))
sketch14.addConstraint(Sketcher.Constraint("DistanceY", 0, 2, 0, 1, Q("1.5 in")))
sketch14.addConstraint(Sketcher.Constraint("DistanceX", 1, 2, 1, 1, Q("0.75 in")))
sketch14.addConstraint(Sketcher.Constraint("DistanceX", -1, 1, 0, 2, Q("0.875 in")))
sketch14.setExpression("Constraints[9]", "Params.sketch14_height")
sketch14.setExpression("Constraints[10]", "Params.sketch14_width")
pad10 = body.newObject("PartDesign::Pad", "Pad009")
pad10.Profile = sketch14
pad10.setExpression("Length", "Params.pad10_length")
pad10.Reversed = True

# Sketch on an angled plane
sketch15 = body.newObject("Sketcher::SketchObject", "Sketch014")
sketch15.Placement = App.Placement(App.Vector(-93.864084, 0, -93.864084), App.Rotation(App.Vector(-0.707106781, 0, 0.707106781), App.Vector(0, 0.999999999, 0), App.Vector(-0.707106781, 0, -0.707106781), "ZXY"))
sketch15.addGeometry(Part.LineSegment(App.Vector(-12.7, 22.81131, 0), App.Vector(-12.7, 0, 0)), False)
sketch15.addGeometry(Part.LineSegment(App.Vector(-12.7, 0, 0), App.Vector(12.7, 0, 0)), False)
sketch15.addGeometry(Part.LineSegment(App.Vector(12.7, 0, 0), App.Vector(12.7, 22.81131, 0)), False)
sketch15.addGeometry(Part.LineSegment(App.Vector(12.7, 22.81131, 0), App.Vector(-12.7, 22.81131, 0)), False)
sketch15.addConstraint(Sketcher.Constraint("Coincident", 0, 2, 1, 1))
sketch15.addConstraint(Sketcher.Constraint("Coincident", 1, 2, 2, 1))
sketch15.addConstraint(Sketcher.Constraint("Coincident", 2, 2, 3, 1))
sketch15.addConstraint(Sketcher.Constraint("Coincident", 3, 2, 0, 1))
sketch15.addConstraint(Sketcher.Constraint("Vertical", 0))
sketch15.addConstraint(Sketcher.Constraint("Horizontal", 1))
sketch15.addConstraint(Sketcher.Constraint("Vertical", 2))
sketch15.addConstraint(Sketcher.Constraint("Horizontal", 3))
sketch15.addConstraint(Sketcher.Constraint("Symmetric", 0, 2, 1, 2, -1, 1))
sketch15.addConstraint(Sketcher.Constraint("DistanceX", 1, 1, 1, 2, Q("1 in")))
sketch15.addConstraint(Sketcher.Constraint("DistanceY", 0, 2, 0, 1, 22.81131))
sketch15.setExpression("Constraints[9]", "Params.sketch15_width")
pad11 = body.newObject("PartDesign::Pad", "Pad010")
pad11.Profile = sketch15
pad11.setExpression("Length", "Params.pad11_length")

# Sketch on an angled plane
sketch16 = body.newObject("Sketcher::SketchObject", "Sketch015")
sketch16.Placement = App.Placement(App.Vector(-94.292689, 0, -94.292689), App.Rotation(App.Vector(-0.707106781, 0, 0.707106781), App.Vector(0, 0.999999999, 0), App.Vector(-0.707106781, 0, -0.707106781), "ZXY"))
sketch16.addGeometry(Part.Circle(App.Vector(8.636, 4.064, 0), App.Vector(0, 0, 1), 1.524), False)
sketch16.addConstraint(Sketcher.Constraint("Diameter", 0, Q("0.12 in")))
sketch16.addConstraint(Sketcher.Constraint("DistanceX", -1, 1, 0, 3, Q("0.34 in")))
sketch16.addConstraint(Sketcher.Constraint("DistanceY", -1, 1, 0, 3, Q("0.16 in")))
sketch16.setExpression("Constraints[0]", "Params.sketch16_diameter")
pocket5 = body.newObject("PartDesign::Pocket", "Pocket004")
pocket5.Profile = sketch16
pocket5.Type = "UpToFirst"

# Sketch on an angled plane
sketch17 = body.newObject("Sketcher::SketchObject", "Sketch016")
sketch17.Placement = App.Placement(App.Vector(-94.292689, 0, -94.292689), App.Rotation(App.Vector(-0.707106781, 0, 0.707106781), App.Vector(0, 0.999999999, 0), App.Vector(-0.707106781, 0, -0.707106781), "ZXY"))
sketch17.addGeometry(Part.Circle(App.Vector(-8.636, 18.74731, 0), App.Vector(0, 0, 1), 1.524), False)
sketch17.addConstraint(Sketcher.Constraint("Diameter", 0, Q("0.12 in")))
sketch17.addConstraint(Sketcher.Constraint("DistanceX", 0, 3, -1, 1, Q("0.34 in")))
sketch17.addConstraint(Sketcher.Constraint("DistanceY", -1, 1, 0, 3, 18.74731))
sketch17.setExpression("Constraints[0]", "Params.sketch17_diameter")
pocket6 = body.newObject("PartDesign::Pocket", "Pocket005")
pocket6.Profile = sketch17
pocket6.Type = "UpToFirst"

# Sketch on an angled plane
sketch18 = body.newObject("Sketcher::SketchObject", "Sketch017")
sketch18.Placement = App.Placement(App.Vector(-94.292689, 0, -94.292689), App.Rotation(App.Vector(-0.707106781, 0, 0.707106781), App.Vector(0, 0.999999999, 0), App.Vector(-0.707106781, 0, -0.707106781), "ZXY"))
sketch18.addGeometry(Part.LineSegment(App.Vector(2.570707, 16.46131, 0), App.Vector(2.570707, 11.112071, 0)), False)
sketch18.addGeometry(Part.LineSegment(App.Vector(2.570707, 11.112071, 0), App.Vector(9.525, 11.112071, 0)), False)
sketch18.addGeometry(Part.LineSegment(App.Vector(9.525, 11.112071, 0), App.Vector(9.525, 16.46131, 0)), False)
sketch18.addGeometry(Part.LineSegment(App.Vector(9.525, 16.46131, 0), App.Vector(2.570707, 16.46131, 0)), False)
sketch18.addConstraint(Sketcher.Constraint("Coincident", 0, 2, 1, 1))
sketch18.addConstraint(Sketcher.Constraint("Coincident", 1, 2, 2, 1))
sketch18.addConstraint(Sketcher.Constraint("Coincident", 2, 2, 3, 1))
sketch18.addConstraint(Sketcher.Constraint("Coincident", 3, 2, 0, 1))
sketch18.addConstraint(Sketcher.Constraint("Vertical", 0))
sketch18.addConstraint(Sketcher.Constraint("Horizontal", 1))
sketch18.addConstraint(Sketcher.Constraint("Vertical", 2))
sketch18.addConstraint(Sketcher.Constraint("Horizontal", 3))
sketch18.addConstraint(Sketcher.Constraint("DistanceY", 0, 2, 0, 1, Q("0.2106 in")))
sketch18.addConstraint(Sketcher.Constraint("DistanceX", -1, 1, 1, 2, Q("0.375 in")))
sketch18.addConstraint(Sketcher.Constraint("DistanceX", 1, 1, 1, 2, 6.954293))
sketch18.addConstraint(Sketcher.Constraint("DistanceY", -1, 1, 0, 2, 11.112071))
pocket7 = body.newObject("PartDesign::Pocket", "Pocket006")
pocket7.Profile = sketch18
pocket7.Type = "UpToFirst"

doc.recompute()
